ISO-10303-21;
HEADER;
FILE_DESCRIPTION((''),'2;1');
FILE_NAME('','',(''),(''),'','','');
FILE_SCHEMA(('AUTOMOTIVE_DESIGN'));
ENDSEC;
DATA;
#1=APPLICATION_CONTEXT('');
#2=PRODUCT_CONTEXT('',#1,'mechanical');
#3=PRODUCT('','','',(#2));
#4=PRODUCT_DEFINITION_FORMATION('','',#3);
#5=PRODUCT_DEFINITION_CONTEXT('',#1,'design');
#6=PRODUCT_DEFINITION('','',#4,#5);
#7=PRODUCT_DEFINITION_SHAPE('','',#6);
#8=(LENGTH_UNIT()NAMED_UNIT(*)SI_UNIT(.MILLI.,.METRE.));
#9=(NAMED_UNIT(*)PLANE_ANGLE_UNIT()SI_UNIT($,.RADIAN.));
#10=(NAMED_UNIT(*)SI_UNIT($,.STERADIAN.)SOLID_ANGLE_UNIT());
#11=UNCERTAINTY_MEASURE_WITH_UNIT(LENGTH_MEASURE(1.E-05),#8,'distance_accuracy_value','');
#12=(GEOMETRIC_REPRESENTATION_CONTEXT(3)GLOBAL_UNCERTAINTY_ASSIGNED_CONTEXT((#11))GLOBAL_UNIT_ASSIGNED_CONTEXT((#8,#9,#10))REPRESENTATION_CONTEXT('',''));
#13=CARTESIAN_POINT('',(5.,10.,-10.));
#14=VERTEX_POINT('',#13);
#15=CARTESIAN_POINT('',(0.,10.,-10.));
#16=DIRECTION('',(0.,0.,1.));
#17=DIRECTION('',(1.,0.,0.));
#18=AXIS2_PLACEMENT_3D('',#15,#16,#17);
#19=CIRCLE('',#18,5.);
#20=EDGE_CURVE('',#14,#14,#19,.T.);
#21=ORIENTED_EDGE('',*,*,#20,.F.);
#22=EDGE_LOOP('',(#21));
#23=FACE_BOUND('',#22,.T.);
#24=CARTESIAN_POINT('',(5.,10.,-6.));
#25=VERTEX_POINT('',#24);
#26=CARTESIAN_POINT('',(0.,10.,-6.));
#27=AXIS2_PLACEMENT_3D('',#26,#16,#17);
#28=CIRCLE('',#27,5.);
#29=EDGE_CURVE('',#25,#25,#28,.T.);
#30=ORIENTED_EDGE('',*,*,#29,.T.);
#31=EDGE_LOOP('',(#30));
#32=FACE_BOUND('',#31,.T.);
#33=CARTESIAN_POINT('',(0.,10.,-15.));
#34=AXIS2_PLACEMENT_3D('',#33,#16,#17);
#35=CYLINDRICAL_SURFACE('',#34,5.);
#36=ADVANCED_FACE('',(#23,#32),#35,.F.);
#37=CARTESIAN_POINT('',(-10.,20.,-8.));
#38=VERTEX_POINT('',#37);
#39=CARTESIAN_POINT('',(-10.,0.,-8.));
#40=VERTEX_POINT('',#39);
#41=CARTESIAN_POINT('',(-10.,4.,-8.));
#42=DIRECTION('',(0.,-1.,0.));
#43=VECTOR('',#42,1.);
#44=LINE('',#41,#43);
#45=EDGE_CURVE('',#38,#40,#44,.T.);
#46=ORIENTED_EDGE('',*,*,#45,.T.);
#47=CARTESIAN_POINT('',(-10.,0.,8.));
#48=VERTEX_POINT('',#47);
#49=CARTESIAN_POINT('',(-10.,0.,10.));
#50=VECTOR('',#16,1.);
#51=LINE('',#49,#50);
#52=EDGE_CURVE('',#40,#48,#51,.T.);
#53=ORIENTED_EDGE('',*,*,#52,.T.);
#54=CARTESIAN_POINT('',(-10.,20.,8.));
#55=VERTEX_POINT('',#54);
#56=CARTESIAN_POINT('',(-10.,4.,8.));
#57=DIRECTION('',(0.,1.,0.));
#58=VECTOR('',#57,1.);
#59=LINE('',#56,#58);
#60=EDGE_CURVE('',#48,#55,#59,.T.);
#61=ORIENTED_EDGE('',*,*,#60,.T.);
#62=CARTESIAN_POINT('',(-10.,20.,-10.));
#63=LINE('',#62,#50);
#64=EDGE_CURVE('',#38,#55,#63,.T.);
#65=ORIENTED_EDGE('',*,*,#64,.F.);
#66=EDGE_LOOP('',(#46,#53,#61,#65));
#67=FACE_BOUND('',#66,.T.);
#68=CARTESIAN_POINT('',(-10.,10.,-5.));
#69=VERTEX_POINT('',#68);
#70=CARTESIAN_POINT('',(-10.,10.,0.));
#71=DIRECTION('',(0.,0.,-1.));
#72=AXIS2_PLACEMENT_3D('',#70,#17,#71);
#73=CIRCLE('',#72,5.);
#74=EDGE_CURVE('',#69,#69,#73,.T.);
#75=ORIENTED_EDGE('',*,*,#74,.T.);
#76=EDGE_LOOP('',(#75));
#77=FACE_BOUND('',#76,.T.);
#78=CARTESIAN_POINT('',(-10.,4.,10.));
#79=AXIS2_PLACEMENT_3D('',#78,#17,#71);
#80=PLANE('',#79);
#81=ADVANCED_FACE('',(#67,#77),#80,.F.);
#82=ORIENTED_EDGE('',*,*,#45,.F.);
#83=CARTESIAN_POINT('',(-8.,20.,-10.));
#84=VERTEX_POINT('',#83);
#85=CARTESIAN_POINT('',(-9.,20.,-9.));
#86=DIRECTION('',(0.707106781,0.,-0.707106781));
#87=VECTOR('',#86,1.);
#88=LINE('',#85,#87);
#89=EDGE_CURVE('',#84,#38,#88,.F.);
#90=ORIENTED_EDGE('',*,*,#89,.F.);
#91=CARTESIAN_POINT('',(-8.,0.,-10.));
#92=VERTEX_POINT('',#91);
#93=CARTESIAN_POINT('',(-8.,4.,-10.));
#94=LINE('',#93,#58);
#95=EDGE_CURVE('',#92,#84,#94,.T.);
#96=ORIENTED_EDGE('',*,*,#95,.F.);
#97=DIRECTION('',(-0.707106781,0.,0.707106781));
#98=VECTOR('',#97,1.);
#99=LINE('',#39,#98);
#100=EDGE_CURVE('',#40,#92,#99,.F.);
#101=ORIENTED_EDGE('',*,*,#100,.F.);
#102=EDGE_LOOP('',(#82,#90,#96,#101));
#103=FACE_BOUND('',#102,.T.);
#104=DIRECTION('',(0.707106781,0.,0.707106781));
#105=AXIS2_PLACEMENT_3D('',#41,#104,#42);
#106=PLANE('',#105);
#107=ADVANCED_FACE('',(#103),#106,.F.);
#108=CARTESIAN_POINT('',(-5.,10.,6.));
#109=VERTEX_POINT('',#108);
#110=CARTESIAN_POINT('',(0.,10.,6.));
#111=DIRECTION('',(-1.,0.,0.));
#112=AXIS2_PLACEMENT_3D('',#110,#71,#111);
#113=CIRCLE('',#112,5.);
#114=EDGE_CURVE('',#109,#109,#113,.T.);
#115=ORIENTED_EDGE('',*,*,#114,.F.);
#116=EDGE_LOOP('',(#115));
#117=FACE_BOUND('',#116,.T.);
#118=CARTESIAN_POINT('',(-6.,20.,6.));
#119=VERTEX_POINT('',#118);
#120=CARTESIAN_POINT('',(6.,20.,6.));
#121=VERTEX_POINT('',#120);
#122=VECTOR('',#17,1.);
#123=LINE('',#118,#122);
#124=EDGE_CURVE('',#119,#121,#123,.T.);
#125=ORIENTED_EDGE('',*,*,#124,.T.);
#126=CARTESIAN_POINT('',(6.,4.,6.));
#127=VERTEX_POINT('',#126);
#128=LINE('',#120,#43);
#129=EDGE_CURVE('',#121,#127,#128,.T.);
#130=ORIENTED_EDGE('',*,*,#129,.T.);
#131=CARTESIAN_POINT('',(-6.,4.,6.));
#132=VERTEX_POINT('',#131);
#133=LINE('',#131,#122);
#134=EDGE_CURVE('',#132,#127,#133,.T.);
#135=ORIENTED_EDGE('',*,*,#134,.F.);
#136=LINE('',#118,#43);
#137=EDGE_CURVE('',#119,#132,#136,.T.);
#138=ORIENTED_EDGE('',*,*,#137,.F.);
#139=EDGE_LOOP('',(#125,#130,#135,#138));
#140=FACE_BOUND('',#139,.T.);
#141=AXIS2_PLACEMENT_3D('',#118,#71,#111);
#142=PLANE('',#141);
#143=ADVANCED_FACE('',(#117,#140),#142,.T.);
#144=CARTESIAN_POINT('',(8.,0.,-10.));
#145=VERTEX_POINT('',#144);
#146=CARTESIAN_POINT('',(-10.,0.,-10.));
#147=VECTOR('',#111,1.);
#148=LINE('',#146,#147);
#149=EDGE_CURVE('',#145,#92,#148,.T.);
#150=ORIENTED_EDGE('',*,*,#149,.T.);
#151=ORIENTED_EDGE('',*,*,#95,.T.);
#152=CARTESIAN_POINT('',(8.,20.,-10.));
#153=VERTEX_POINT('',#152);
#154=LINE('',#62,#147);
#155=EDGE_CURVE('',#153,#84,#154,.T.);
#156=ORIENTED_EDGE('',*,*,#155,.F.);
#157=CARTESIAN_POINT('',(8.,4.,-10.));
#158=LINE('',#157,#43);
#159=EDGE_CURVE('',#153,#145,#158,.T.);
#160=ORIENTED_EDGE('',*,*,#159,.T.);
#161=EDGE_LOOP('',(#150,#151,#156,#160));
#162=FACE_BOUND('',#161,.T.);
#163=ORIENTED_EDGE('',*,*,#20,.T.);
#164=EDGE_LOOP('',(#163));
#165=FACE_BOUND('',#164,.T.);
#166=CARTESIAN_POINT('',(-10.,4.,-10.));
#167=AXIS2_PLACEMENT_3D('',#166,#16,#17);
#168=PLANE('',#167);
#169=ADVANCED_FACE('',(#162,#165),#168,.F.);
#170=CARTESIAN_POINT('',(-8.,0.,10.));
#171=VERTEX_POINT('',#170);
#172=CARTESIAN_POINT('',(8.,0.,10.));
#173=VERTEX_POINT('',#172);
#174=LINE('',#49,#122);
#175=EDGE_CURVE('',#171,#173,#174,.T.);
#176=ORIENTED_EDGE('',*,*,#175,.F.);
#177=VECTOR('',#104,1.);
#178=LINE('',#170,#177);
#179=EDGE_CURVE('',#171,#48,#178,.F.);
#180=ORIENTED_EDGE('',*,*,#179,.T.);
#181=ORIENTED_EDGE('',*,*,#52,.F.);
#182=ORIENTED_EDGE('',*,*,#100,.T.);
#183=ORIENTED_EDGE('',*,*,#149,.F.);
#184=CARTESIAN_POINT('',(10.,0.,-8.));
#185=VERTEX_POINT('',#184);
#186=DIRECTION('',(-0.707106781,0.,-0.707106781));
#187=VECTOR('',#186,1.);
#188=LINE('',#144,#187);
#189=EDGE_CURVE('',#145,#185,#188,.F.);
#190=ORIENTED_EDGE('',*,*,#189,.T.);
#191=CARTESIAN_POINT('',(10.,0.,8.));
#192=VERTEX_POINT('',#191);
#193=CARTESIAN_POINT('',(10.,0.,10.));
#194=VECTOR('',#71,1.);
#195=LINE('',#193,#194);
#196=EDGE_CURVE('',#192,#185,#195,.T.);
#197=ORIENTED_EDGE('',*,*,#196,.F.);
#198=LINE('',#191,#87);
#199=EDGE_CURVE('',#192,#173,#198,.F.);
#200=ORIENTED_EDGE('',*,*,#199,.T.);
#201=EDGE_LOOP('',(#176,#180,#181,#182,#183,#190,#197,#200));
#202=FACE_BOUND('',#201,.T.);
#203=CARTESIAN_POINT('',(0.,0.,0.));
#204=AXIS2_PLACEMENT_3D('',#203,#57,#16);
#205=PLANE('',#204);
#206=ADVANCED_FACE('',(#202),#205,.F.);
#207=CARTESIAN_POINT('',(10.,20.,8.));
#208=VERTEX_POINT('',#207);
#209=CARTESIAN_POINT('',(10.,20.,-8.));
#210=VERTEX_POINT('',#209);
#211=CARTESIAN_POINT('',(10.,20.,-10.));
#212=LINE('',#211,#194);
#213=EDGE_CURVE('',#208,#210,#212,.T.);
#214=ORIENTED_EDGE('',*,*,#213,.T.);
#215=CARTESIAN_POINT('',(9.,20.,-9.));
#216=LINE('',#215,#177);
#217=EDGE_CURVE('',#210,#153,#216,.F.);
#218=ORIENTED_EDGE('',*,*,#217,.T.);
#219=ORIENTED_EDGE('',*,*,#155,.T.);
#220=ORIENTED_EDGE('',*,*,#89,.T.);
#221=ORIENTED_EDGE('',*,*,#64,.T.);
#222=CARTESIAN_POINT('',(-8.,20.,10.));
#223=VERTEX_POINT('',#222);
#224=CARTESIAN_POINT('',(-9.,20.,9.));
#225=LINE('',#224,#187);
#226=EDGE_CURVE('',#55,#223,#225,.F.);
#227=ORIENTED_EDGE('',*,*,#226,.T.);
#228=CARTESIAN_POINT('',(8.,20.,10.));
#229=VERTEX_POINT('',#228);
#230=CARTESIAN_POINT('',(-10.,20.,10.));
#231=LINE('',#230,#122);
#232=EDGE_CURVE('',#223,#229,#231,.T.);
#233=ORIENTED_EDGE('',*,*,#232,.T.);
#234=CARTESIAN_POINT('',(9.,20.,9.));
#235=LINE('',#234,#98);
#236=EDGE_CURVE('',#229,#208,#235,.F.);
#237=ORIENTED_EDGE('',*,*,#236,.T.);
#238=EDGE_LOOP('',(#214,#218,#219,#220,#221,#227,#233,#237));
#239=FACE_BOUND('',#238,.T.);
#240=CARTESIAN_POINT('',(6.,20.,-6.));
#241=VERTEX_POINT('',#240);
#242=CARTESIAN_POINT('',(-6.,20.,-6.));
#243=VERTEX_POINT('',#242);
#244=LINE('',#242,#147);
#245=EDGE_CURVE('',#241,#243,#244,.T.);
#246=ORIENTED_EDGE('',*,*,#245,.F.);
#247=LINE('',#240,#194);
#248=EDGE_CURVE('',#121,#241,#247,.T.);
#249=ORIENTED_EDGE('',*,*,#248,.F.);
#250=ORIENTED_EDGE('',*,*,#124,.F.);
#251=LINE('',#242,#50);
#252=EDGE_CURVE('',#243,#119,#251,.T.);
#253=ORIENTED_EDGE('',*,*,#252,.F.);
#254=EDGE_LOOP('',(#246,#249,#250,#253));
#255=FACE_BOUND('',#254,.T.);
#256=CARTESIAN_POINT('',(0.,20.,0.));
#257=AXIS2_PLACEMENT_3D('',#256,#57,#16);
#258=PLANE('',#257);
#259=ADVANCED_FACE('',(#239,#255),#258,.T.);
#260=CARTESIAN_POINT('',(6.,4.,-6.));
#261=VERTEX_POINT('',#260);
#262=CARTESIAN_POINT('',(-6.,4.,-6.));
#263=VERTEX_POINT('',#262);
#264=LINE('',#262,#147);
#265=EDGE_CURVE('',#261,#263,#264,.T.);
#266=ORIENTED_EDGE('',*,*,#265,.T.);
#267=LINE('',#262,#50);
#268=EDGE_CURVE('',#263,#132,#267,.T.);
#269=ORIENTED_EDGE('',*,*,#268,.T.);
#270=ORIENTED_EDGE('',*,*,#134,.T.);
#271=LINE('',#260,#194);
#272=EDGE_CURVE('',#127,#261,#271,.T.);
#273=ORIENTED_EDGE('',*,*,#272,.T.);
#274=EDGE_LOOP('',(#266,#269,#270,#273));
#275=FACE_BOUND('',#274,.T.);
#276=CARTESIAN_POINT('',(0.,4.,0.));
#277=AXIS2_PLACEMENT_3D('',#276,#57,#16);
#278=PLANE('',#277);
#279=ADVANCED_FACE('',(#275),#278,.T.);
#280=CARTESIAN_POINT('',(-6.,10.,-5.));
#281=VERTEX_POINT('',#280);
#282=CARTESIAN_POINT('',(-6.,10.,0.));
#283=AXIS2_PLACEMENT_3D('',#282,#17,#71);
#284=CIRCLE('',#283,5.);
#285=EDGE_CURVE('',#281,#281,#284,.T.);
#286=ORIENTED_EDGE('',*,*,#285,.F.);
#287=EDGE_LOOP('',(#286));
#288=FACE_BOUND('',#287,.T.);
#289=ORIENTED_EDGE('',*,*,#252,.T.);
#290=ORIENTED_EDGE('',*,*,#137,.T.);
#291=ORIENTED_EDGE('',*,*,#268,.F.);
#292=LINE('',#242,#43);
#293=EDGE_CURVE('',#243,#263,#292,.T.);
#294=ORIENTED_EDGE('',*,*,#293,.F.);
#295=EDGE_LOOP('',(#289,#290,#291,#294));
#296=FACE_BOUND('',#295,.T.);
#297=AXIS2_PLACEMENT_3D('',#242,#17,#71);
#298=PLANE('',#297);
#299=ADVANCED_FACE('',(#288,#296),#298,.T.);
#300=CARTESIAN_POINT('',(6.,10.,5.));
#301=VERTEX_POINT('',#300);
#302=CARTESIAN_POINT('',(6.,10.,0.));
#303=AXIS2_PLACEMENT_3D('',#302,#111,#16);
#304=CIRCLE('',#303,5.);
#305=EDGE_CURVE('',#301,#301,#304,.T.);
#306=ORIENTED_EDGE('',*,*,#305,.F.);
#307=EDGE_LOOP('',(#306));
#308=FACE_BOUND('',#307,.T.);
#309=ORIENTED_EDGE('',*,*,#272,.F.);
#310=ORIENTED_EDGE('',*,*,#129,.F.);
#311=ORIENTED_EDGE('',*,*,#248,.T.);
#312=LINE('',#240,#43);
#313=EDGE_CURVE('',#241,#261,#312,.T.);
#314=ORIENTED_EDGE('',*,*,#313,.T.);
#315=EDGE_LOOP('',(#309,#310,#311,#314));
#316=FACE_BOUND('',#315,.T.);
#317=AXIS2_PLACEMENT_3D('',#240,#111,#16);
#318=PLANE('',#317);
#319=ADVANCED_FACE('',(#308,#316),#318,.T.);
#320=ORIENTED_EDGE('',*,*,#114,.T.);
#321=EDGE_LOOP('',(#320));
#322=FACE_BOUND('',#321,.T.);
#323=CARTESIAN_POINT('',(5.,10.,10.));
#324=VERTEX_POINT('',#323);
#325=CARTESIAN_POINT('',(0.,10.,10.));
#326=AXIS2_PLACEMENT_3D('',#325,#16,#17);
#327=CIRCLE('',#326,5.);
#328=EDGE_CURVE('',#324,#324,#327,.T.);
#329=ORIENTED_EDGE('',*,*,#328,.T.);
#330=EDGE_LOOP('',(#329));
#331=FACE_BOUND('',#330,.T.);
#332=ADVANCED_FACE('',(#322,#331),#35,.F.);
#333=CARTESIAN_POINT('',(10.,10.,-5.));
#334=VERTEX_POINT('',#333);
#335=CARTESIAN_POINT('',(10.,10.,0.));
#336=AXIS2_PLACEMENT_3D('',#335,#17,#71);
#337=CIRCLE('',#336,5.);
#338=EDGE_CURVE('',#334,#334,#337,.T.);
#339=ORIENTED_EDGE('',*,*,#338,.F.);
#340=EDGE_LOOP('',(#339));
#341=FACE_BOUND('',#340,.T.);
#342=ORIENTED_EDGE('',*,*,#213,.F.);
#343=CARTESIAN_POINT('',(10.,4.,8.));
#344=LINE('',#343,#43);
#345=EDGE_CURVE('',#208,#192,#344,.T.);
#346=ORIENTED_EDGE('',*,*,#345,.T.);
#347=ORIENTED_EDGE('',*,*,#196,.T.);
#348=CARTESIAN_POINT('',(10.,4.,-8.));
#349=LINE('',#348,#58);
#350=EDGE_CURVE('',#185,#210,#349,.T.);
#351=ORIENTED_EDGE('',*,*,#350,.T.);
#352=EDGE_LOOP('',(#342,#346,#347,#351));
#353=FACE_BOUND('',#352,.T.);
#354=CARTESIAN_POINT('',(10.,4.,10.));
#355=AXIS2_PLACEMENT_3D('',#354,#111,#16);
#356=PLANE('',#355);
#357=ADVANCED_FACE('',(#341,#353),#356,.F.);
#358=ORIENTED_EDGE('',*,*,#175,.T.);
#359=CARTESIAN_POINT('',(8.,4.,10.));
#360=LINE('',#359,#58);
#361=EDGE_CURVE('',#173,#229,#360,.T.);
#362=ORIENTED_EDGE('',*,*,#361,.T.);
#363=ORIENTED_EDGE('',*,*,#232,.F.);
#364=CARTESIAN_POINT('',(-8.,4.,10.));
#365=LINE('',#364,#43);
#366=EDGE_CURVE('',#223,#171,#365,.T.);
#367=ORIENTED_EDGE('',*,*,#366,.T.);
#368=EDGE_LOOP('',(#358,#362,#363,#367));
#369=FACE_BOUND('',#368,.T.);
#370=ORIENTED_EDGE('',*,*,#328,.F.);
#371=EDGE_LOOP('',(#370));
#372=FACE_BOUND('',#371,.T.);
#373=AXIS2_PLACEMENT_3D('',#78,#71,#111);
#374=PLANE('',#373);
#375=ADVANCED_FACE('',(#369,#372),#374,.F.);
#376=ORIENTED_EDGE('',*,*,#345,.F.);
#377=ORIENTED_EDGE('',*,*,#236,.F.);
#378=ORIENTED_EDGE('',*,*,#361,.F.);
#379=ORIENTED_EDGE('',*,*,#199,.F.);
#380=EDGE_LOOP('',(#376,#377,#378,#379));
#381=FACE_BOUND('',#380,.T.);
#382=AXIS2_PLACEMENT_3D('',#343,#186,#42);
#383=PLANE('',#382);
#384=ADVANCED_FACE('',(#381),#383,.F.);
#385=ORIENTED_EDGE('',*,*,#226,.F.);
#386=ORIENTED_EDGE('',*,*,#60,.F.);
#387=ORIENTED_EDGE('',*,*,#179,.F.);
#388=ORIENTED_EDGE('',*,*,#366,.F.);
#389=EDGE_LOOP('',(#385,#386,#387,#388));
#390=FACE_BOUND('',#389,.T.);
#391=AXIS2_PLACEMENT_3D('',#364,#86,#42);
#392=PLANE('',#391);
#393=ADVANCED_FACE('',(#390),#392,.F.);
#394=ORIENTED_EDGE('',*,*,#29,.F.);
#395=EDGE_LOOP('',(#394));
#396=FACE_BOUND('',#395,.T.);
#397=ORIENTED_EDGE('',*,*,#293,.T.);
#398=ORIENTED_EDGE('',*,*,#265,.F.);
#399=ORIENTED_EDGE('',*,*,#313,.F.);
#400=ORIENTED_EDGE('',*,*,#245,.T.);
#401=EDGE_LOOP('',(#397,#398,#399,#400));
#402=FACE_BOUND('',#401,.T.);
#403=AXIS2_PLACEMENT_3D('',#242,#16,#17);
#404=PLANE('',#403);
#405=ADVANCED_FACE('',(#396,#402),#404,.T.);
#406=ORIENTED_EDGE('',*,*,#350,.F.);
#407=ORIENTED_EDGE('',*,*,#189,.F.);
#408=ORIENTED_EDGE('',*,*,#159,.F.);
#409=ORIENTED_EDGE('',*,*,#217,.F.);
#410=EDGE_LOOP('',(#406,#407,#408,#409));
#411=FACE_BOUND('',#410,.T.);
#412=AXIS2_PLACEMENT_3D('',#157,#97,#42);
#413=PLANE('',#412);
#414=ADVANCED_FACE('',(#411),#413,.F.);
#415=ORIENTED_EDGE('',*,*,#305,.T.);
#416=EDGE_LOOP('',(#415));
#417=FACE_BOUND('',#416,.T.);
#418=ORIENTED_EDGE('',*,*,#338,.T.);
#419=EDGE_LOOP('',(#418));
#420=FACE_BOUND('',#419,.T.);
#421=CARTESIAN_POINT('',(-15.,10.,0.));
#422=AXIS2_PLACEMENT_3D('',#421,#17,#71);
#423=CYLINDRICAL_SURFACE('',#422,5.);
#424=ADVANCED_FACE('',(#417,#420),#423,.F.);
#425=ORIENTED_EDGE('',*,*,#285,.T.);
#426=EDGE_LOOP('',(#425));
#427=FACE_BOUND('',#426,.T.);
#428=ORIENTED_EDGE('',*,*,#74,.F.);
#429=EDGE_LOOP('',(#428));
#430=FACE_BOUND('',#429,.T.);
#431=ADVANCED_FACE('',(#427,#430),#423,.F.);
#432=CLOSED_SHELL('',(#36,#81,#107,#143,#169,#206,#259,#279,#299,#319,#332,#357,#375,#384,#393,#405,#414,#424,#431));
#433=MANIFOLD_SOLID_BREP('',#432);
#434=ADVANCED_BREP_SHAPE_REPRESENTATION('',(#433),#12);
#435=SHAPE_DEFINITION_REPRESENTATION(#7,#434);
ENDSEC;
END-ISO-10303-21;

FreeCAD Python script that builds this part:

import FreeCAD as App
import Part
import Sketcher
from FreeCAD import Vector


def edges_at(feature, points):
    """Names of the edges that pass closest to the given points."""
    edges = feature.Shape.Edges
    near = lambda p: min(range(len(edges)), key=lambda i: edges[i].distToShape(Part.Vertex(*p))[0])
    return sorted({f"Edge{near(p) + 1}" for p in points})


def add_polygon(sketch, points):
    """Adds a closed chain of lines whose ends are joined by coincident constraints."""
    first, n = sketch.GeometryCount, len(points)
    for a, b in zip(points, points[1:] + points[:1]):
        sketch.addGeometry(Part.LineSegment(App.Vector(*a, 0), App.Vector(*b, 0)), False)
    for i in range(n):
        sketch.addConstraint(Sketcher.Constraint("Coincident", first + i, 2, first + (i + 1) % n, 1))

doc = App.newDocument("Part")
body = doc.addObject("PartDesign::Body", "Body")

# Sketch on XZ plane
sketch1 = body.newObject("Sketcher::SketchObject", "Sketch")
sketch1.AttachmentSupport = (doc.getObject("XZ_Plane"), [""])
sketch1.MapMode = "FlatFace"
add_polygon(sketch1, [(-10, -10), (-10, 10), (10, 10), (10, -10)])  # lines 0-3
sketch1.addConstraint([
    Sketcher.Constraint("Vertical", 0),
    Sketcher.Constraint("Horizontal", 1),
    Sketcher.Constraint("Vertical", 2),
    Sketcher.Constraint("Horizontal", 3),
    Sketcher.Constraint("Symmetric", 0, 2, 2, 2, -1, 1),
    Sketcher.Constraint("Equal", 3, 0),
    Sketcher.Constraint("DistanceX", 1, 1, 1, 2, 20.0),
])
pad1 = body.newObject("PartDesign::Pad", "Pad")
pad1.Profile = sketch1
pad1.Length = 4
pad1.Reversed = True

# Sketch on XZ plane
sketch2 = body.newObject("Sketcher::SketchObject", "Sketch001")
sketch2.AttachmentSupport = (doc.getObject("XZ_Plane"), [""])
sketch2.MapMode = "FlatFace"
sketch2.AttachmentOffset = App.Placement(Vector(0, 0, -4), App.Rotation())
add_polygon(sketch2, [(-10, -10), (-10, 10), (10, 10), (10, -10)])  # lines 0-3
add_polygon(sketch2, [(6, 6), (-6, 6), (-6, -6), (6, -6)])  # lines 4-7
sketch2.addConstraint([
    Sketcher.Constraint("Vertical", 0),
    Sketcher.Constraint("Horizontal", 1),
    Sketcher.Constraint("Vertical", 2),
    Sketcher.Constraint("Horizontal", 3),
    Sketcher.Constraint("Horizontal", 4),
    Sketcher.Constraint("Vertical", 5),
    Sketcher.Constraint("Horizontal", 6),
    Sketcher.Constraint("Vertical", 7),
    Sketcher.Constraint("Symmetric", 0, 2, 2, 2, -1, 1),
    Sketcher.Constraint("Symmetric", 4, 2, 6, 2, -1, 1),
    Sketcher.Constraint("Equal", 3, 0),
    Sketcher.Constraint("Equal", 6, 5),
    Sketcher.Constraint("DistanceX", 1, 1, 1, 2, 20.0),
    Sketcher.Constraint("DistanceX", 4, 2, 4, 1, 12.0),
])
pad2 = body.newObject("PartDesign::Pad", "Pad001")
pad2.Profile = sketch2
pad2.Length = 16
pad2.Reversed = True

# Sketch on YZ plane
sketch3 = body.newObject("Sketcher::SketchObject", "Sketch002")
sketch3.AttachmentSupport = (doc.getObject("YZ_Plane"), [""])
sketch3.MapMode = "FlatFace"
sketch3.AttachmentOffset = App.Placement(Vector(0, 0, 10), App.Rotation())
sketch3.addGeometry(Part.Circle(Vector(10, 0, 0), Vector(0, 0, 1), 5), False)
sketch3.addConstraint([
    Sketcher.Constraint("PointOnObject", 0, 3, -1),
    Sketcher.Constraint("Diameter", 0, 10.0),
    Sketcher.Constraint("DistanceX", -1, 1, 0, 3, 10.0),
])
pocket1 = body.newObject("PartDesign::Pocket", "Pocket")
pocket1.Profile = sketch3
pocket1.Length = 25

# Sketch on XY plane
sketch4 = body.newObject("Sketcher::SketchObject", "Sketch003")
sketch4.AttachmentSupport = (doc.getObject("XY_Plane"), [""])
sketch4.MapMode = "FlatFace"
sketch4.AttachmentOffset = App.Placement(Vector(0, 0, 10), App.Rotation())
sketch4.addGeometry(Part.Circle(Vector(0, 10, 0), Vector(0, 0, 1), 5), False)
sketch4.addConstraint([
    Sketcher.Constraint("PointOnObject", 0, 3, -2),
    Sketcher.Constraint("Diameter", 0, 10.0),
    Sketcher.Constraint("DistanceY", -1, 1, 0, 3, 10.0),
])
pocket2 = body.newObject("PartDesign::Pocket", "Pocket001")
pocket2.Profile = sketch4
pocket2.Length = 25
doc.recompute()

chamfer = body.newObject("PartDesign::Chamfer", "Chamfer")
chamfer.Base = (pocket2, edges_at(pocket2, [
    (10, 10, -10),
    (10, 10, 10),
    (-10, 10, 10),
    (-10, 10, -10),
]))
chamfer.Size = 2

doc.recompute()
